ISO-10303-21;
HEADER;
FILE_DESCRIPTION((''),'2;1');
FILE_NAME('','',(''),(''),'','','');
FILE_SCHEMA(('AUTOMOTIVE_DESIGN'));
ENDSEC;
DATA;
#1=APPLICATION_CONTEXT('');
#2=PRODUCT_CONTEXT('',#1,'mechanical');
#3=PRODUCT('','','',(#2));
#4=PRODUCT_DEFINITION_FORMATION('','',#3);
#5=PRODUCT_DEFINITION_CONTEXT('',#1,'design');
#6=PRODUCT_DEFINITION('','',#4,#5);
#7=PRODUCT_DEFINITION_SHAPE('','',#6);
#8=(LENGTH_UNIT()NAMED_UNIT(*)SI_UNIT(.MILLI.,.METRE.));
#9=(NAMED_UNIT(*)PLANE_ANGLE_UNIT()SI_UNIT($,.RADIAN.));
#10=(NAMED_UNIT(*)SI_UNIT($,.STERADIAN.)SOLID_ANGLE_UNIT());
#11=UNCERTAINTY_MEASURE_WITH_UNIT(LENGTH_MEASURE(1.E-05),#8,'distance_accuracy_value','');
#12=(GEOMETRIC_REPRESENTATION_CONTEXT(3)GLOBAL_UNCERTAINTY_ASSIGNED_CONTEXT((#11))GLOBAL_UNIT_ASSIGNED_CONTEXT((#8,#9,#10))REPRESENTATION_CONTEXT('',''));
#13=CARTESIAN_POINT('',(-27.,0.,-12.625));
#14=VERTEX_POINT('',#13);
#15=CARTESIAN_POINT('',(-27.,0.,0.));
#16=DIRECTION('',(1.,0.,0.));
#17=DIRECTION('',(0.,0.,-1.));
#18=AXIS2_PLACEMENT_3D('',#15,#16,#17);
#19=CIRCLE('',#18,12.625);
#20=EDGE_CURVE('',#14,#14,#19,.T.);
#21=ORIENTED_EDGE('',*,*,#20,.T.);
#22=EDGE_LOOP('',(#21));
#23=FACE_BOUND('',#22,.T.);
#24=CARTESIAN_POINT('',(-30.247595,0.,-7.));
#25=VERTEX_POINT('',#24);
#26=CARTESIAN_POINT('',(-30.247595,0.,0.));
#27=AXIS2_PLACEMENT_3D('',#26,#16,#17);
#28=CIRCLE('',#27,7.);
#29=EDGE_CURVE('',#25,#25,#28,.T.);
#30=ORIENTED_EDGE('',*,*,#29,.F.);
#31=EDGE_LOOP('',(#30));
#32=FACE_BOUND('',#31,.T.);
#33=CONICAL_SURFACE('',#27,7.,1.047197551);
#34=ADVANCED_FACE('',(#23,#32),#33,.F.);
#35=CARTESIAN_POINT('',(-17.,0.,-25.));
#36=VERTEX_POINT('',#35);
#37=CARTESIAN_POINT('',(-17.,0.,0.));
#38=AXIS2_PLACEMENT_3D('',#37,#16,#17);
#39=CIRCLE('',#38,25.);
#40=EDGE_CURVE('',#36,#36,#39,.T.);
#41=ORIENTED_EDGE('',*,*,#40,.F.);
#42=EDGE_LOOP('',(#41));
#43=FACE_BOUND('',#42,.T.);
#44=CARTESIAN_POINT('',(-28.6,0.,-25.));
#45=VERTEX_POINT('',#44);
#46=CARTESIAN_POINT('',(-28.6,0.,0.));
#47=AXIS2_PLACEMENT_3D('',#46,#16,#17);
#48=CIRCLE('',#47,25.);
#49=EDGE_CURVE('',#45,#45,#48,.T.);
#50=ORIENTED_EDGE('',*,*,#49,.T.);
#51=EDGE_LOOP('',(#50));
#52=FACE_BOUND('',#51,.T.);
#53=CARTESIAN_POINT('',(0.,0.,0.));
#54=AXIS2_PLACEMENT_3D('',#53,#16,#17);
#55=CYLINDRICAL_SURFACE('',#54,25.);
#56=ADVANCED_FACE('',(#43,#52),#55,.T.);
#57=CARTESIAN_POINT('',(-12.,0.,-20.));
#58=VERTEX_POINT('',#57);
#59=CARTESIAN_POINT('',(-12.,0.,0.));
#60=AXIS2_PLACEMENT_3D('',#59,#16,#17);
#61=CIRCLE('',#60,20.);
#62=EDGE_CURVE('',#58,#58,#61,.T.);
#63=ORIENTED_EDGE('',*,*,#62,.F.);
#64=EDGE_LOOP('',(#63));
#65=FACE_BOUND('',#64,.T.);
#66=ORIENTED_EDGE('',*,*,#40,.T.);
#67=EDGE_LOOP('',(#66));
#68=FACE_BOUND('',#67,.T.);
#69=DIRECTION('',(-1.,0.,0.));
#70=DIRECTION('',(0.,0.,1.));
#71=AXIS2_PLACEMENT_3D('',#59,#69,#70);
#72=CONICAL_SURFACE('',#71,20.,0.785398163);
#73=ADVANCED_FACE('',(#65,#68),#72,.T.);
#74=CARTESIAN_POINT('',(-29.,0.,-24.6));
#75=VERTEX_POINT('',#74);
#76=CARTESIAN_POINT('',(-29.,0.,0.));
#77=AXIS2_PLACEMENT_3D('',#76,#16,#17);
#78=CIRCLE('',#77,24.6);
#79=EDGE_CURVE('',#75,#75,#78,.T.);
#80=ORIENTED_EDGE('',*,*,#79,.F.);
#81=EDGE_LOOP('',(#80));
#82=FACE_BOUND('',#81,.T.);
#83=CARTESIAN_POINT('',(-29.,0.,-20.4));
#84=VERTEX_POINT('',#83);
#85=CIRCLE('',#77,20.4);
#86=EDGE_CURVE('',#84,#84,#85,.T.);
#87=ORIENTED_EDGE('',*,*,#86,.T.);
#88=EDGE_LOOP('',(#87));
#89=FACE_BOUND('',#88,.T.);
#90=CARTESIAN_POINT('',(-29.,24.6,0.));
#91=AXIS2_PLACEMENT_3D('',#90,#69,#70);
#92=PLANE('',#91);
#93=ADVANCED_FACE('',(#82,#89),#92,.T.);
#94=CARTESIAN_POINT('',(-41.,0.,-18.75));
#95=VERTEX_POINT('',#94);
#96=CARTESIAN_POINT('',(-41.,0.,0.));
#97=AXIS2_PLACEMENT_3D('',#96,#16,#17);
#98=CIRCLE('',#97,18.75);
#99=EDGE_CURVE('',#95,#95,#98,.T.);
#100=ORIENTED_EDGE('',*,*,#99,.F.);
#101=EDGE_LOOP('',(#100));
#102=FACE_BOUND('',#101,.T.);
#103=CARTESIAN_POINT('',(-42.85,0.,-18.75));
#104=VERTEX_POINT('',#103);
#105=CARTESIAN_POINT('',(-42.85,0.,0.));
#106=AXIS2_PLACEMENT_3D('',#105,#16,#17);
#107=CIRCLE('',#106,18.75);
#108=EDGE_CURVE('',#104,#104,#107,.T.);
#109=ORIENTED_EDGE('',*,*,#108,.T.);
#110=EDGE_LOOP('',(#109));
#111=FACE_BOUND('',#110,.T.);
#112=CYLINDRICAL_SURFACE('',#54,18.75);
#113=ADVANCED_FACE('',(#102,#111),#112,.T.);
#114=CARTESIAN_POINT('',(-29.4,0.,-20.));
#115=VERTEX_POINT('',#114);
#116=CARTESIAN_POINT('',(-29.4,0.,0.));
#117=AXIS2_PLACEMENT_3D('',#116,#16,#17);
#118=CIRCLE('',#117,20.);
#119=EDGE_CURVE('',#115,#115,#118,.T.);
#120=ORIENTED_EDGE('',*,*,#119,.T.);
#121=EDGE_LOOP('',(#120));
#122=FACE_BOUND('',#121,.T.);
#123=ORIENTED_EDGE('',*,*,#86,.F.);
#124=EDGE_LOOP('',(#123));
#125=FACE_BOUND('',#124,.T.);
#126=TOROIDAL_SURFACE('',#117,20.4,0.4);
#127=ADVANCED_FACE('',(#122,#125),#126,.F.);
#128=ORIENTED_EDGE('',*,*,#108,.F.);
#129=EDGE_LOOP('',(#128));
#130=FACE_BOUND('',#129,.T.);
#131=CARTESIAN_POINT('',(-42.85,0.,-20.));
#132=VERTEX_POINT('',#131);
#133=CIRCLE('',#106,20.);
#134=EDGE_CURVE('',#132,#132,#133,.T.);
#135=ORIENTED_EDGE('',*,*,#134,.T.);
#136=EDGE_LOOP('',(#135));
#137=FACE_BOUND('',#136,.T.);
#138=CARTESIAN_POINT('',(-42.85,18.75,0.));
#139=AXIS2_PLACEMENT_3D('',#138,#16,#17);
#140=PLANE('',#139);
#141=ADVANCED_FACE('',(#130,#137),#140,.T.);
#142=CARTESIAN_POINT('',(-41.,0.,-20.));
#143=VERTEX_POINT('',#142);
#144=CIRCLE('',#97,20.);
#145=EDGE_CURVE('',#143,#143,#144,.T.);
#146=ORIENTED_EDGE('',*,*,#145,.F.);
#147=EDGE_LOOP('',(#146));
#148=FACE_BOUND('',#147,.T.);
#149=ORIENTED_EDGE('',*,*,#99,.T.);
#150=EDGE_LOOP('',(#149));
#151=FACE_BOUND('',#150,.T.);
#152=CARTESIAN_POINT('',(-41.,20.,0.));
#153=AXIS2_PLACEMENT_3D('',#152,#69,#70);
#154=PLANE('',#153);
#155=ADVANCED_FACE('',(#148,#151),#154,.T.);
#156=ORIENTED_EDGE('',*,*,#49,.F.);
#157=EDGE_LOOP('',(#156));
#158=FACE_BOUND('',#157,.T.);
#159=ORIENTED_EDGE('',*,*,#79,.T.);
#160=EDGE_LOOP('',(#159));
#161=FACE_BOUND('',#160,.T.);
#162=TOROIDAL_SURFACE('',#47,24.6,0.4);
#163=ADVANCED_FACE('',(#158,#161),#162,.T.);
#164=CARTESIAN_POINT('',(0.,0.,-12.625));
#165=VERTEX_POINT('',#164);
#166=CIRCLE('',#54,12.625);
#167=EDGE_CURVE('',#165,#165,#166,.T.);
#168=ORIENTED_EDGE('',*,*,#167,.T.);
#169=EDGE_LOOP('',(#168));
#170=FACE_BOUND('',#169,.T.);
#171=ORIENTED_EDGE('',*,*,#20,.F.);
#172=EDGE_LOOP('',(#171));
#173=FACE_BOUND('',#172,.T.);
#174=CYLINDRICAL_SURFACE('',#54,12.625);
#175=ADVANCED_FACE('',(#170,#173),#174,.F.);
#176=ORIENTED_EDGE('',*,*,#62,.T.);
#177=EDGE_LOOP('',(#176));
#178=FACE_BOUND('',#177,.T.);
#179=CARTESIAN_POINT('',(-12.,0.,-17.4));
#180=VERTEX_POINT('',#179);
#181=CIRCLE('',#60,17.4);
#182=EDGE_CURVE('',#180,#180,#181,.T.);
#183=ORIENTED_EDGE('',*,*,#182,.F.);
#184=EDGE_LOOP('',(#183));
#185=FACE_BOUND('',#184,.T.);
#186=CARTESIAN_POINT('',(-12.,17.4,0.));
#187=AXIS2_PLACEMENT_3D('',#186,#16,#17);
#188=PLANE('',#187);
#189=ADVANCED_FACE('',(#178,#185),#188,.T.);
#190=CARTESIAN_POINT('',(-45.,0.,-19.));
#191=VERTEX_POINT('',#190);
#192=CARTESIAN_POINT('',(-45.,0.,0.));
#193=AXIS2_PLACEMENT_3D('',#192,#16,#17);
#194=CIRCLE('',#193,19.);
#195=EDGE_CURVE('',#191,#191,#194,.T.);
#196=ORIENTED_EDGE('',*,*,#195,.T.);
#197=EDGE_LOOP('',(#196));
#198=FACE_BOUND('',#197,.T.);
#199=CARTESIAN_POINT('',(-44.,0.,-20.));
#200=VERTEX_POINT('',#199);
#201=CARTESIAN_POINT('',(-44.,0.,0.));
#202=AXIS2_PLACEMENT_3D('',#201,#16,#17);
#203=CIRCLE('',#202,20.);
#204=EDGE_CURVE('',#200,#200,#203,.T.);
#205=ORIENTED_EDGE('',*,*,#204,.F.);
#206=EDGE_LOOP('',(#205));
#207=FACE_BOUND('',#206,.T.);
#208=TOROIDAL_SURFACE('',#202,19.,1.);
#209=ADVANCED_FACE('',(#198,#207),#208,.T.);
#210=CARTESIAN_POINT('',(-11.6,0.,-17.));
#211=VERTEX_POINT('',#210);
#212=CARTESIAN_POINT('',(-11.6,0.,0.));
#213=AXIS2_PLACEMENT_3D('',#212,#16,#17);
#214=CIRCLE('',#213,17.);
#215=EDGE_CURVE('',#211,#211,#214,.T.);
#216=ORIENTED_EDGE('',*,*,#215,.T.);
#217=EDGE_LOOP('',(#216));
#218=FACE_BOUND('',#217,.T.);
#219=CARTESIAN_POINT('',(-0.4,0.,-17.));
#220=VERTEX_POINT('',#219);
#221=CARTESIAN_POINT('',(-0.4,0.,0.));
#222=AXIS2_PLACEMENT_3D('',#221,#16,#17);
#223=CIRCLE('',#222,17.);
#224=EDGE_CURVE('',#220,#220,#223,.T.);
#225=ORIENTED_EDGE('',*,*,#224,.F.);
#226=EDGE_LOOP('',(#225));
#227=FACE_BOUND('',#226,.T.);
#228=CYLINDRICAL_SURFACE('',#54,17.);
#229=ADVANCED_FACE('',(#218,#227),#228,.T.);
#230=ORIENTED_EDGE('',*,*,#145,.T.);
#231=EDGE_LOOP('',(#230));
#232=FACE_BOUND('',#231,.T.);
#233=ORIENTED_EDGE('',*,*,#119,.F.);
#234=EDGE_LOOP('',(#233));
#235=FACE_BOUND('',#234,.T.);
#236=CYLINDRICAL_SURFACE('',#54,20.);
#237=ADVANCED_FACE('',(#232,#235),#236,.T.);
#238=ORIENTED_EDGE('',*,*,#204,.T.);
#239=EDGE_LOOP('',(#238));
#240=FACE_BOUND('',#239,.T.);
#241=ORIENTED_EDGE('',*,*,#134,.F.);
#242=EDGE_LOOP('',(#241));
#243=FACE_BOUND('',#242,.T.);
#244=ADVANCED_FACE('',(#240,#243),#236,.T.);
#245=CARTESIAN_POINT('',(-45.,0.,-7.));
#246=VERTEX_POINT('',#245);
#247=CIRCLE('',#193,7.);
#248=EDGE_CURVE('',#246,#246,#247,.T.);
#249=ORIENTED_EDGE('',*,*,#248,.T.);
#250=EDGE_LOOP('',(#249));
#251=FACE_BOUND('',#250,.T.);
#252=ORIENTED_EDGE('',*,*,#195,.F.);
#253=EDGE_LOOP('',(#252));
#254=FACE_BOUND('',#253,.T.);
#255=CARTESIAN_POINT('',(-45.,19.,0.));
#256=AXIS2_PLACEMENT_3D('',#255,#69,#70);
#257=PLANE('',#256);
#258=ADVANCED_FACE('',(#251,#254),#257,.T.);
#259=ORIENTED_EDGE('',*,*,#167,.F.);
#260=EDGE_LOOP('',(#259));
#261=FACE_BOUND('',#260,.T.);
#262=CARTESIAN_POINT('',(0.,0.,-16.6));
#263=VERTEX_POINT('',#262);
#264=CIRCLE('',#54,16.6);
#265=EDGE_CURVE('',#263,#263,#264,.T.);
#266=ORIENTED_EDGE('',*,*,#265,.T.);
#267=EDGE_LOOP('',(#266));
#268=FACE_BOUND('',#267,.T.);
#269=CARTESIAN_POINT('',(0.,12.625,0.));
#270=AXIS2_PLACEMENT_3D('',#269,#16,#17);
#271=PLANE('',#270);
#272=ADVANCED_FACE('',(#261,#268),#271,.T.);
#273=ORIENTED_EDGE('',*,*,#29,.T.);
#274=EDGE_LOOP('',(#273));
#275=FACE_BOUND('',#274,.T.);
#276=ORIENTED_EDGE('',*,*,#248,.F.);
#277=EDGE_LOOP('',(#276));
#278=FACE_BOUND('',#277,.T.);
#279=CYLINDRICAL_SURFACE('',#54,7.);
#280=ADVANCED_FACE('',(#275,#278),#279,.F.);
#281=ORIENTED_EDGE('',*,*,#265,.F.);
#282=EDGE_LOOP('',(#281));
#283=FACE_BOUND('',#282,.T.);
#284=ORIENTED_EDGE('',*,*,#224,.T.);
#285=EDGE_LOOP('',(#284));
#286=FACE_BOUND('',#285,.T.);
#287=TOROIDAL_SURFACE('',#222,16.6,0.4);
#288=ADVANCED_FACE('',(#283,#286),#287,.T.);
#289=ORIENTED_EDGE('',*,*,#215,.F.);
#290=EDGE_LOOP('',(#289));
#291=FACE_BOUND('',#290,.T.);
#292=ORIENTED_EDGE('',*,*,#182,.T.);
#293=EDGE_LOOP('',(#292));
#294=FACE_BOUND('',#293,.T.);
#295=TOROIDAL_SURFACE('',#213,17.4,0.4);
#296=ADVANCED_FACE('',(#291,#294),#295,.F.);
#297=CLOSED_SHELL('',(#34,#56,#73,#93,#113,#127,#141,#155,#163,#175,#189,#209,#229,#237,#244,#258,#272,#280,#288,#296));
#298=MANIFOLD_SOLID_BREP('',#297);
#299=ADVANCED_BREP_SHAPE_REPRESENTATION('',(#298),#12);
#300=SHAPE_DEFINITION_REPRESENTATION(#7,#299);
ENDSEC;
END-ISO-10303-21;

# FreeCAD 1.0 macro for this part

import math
import FreeCAD as App
import Part
import Sketcher

V = App.Vector
Q = App.Units.Quantity

doc = App.newDocument("Part")
body = doc.addObject("PartDesign::Body", "Body")

sketch1 = body.newObject("Sketcher::SketchObject", "Sketch")
sketch1.AttachmentSupport = (doc.getObject("XY_Plane"), [""])
sketch1.MapMode = "FlatFace"
sketch1.addGeometry(Part.LineSegment(V(0, 12.625, 0), V(0, 16.6, 0)), False)
sketch1.addGeometry(Part.ArcOfCircle(Part.Circle(V(-0.4, 16.6, 0), V(0, 0, 1), 0.4), math.radians(0), math.radians(90)), False)
sketch1.addGeometry(Part.LineSegment(V(-0.4, 17, 0), V(-11.6, 17, 0)), False)
sketch1.addGeometry(Part.ArcOfCircle(Part.Circle(V(-11.6, 17.4, 0), V(0, 0, 1), 0.4), math.radians(-180), math.radians(-90)), False)
sketch1.addGeometry(Part.LineSegment(V(-12, 17.4, 0), V(-12, 20, 0)), False)
sketch1.addGeometry(Part.LineSegment(V(-12, 20, 0), V(-17, 25, 0)), False)
sketch1.addGeometry(Part.LineSegment(V(-17, 25, 0), V(-28.6, 25, 0)), False)
sketch1.addGeometry(Part.ArcOfCircle(Part.Circle(V(-28.6, 24.6, 0), V(0, 0, 1), 0.4), math.radians(90), math.radians(180)), False)
sketch1.addGeometry(Part.LineSegment(V(-29, 24.6, 0), V(-29, 20.4, 0)), False)
sketch1.addGeometry(Part.ArcOfCircle(Part.Circle(V(-29.4, 20.4, 0), V(0, 0, 1), 0.4), math.radians(-90), math.radians(0)), False)
sketch1.addGeometry(Part.LineSegment(V(-29.4, 20, 0), V(-41, 20, 0)), False)
sketch1.addGeometry(Part.LineSegment(V(-41, 20, 0), V(-41, 18.75, 0)), False)
sketch1.addGeometry(Part.LineSegment(V(-41, 18.75, 0), V(-42.85, 18.75, 0)), False)
sketch1.addGeometry(Part.LineSegment(V(-42.85, 18.75, 0), V(-42.85, 20, 0)), False)
sketch1.addGeometry(Part.LineSegment(V(-42.85, 20, 0), V(-44, 20, 0)), False)
sketch1.addGeometry(Part.ArcOfCircle(Part.Circle(V(-44, 19, 0), V(0, 0, 1), 1), math.radians(90), math.radians(180)), False)
sketch1.addGeometry(Part.LineSegment(V(-45, 19, 0), V(-45, 7, 0)), False)
sketch1.addGeometry(Part.LineSegment(V(-45, 7, 0), V(-30.247595, 7, 0)), False)
sketch1.addGeometry(Part.LineSegment(V(-30.247595, 7, 0), V(-27, 12.625, 0)), False)
sketch1.addGeometry(Part.LineSegment(V(-27, 12.625, 0), V(0, 12.625, 0)), False)
sketch1.addConstraint(Sketcher.Constraint("Tangent", 0, 2, 1, 1))
sketch1.addConstraint(Sketcher.Constraint("Tangent", 1, 2, 2, 1))
sketch1.addConstraint(Sketcher.Constraint("Tangent", 2, 2, 3, 2))
sketch1.addConstraint(Sketcher.Constraint("Tangent", 3, 1, 4, 1))
sketch1.addConstraint(Sketcher.Constraint("Coincident", 4, 2, 5, 1))
sketch1.addConstraint(Sketcher.Constraint("Coincident", 5, 2, 6, 1))
sketch1.addConstraint(Sketcher.Constraint("Tangent", 6, 2, 7, 1))
sketch1.addConstraint(Sketcher.Constraint("Tangent", 7, 2, 8, 1))
sketch1.addConstraint(Sketcher.Constraint("Tangent", 8, 2, 9, 2))
sketch1.addConstraint(Sketcher.Constraint("Tangent", 9, 1, 10, 1))
sketch1.addConstraint(Sketcher.Constraint("Coincident", 10, 2, 11, 1))
sketch1.addConstraint(Sketcher.Constraint("Coincident", 11, 2, 12, 1))
sketch1.addConstraint(Sketcher.Constraint("Coincident", 12, 2, 13, 1))
sketch1.addConstraint(Sketcher.Constraint("Coincident", 13, 2, 14, 1))
sketch1.addConstraint(Sketcher.Constraint("Tangent", 14, 2, 15, 1))
sketch1.addConstraint(Sketcher.Constraint("Tangent", 15, 2, 16, 1))
sketch1.addConstraint(Sketcher.Constraint("Coincident", 16, 2, 17, 1))
sketch1.addConstraint(Sketcher.Constraint("Coincident", 17, 2, 18, 1))
sketch1.addConstraint(Sketcher.Constraint("Coincident", 18, 2, 19, 1))
sketch1.addConstraint(Sketcher.Constraint("Coincident", 19, 2, 0, 1))
sketch1.addConstraint(Sketcher.Constraint("Vertical", 0))
sketch1.addConstraint(Sketcher.Constraint("Horizontal", 2))
sketch1.addConstraint(Sketcher.Constraint("Vertical", 4))
sketch1.addConstraint(Sketcher.Constraint("Horizontal", 6))
sketch1.addConstraint(Sketcher.Constraint("Vertical", 8))
sketch1.addConstraint(Sketcher.Constraint("Horizontal", 10))
sketch1.addConstraint(Sketcher.Constraint("Vertical", 11))
sketch1.addConstraint(Sketcher.Constraint("Horizontal", 12))
sketch1.addConstraint(Sketcher.Constraint("Vertical", 13))
sketch1.addConstraint(Sketcher.Constraint("Horizontal", 14))
sketch1.addConstraint(Sketcher.Constraint("Vertical", 16))
sketch1.addConstraint(Sketcher.Constraint("Horizontal", 17))
sketch1.addConstraint(Sketcher.Constraint("Horizontal", 19))
sketch1.addConstraint(Sketcher.Constraint("Equal", 1, 3))
sketch1.addConstraint(Sketcher.Constraint("Equal", 3, 7))
sketch1.addConstraint(Sketcher.Constraint("Equal", 7, 9))
sketch1.addConstraint(Sketcher.Constraint("PointOnObject", 0, 2, -2))
sketch1.addConstraint(Sketcher.Constraint("Horizontal", 4, 2, 9, 1))
sketch1.addConstraint(Sketcher.Constraint("Horizontal", 10, 2, 13, 2))
sketch1.addConstraint(Sketcher.Constraint("Equal", 6, 10))
sketch1.addConstraint(Sketcher.Constraint("Radius", 15, Q("1 mm")))
sketch1.addConstraint(Sketcher.Constraint("Radius", 1, Q("0.4 mm")))
sketch1.addConstraint(Sketcher.Constraint("DistanceX", 19, 1, 19, 2, Q("27 mm")))
sketch1.addConstraint(Sketcher.Constraint("DistanceY", 16, 2, 16, 1, Q("12 mm")))
sketch1.addConstraint(Sketcher.Constraint("Angle", 5, Q("135 deg")))
sketch1.addConstraint(Sketcher.Constraint("Angle", 18, Q("60 deg")))
sketch1.addConstraint(Sketcher.Constraint("DistanceX", 2, 2, 2, 1, Q("11.2 mm")))
sketch1.addConstraint(Sketcher.Constraint("DistanceX", 6, 2, 6, 1, Q("11.6 mm")))
sketch1.addConstraint(Sketcher.Constraint("DistanceY", 4, 1, 4, 2, Q("2.6 mm")))
sketch1.addConstraint(Sketcher.Constraint("DistanceY", 8, 2, 8, 1, Q("4.2 mm")))
sketch1.addConstraint(Sketcher.Constraint("DistanceX", 15, 3, -1, 1, Q("44 mm")))
sketch1.addConstraint(Sketcher.Constraint("DistanceY", -1, 1, 15, 3, Q("19 mm")))
sketch1.addConstraint(Sketcher.Constraint("DistanceX", 12, 2, 12, 1, Q("1.85 mm")))
sketch1.addConstraint(Sketcher.Constraint("DistanceY", 11, 2, 11, 1, Q("1.25 mm")))
sketch1.addConstraint(Sketcher.Constraint("DistanceY", 0, 1, 0, 2, Q("3.975 mm")))
revolution = body.newObject("PartDesign::Revolution", "Revolution")
revolution.Profile = sketch1
revolution.ReferenceAxis = (sketch1, ["H_Axis"])
revolution.Angle = 360

doc.recompute()
